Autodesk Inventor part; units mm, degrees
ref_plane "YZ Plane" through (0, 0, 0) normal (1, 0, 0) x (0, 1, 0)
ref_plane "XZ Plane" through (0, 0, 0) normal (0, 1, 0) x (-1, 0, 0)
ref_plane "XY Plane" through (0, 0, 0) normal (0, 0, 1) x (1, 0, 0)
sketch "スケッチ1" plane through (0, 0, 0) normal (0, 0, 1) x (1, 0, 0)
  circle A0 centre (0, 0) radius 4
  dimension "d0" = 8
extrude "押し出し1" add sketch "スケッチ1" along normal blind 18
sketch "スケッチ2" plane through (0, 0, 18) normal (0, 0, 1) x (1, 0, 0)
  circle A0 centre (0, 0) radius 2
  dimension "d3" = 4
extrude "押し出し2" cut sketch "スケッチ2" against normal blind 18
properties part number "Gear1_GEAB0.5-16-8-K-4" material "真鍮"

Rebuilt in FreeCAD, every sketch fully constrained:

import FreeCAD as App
import Part
import Sketcher

V = App.Vector

doc = App.newDocument("Part")
body = doc.addObject("PartDesign::Body", "Body")

sketch1 = doc.addObject("Sketcher::SketchObject", "Sketch")
body.addObject(sketch1)
sketch1.AttachmentSupport = (doc.XY_Plane, [""])
sketch1.MapMode = "FlatFace"
sketch1.addGeometry(Part.Circle(V(0, 0, 0), V(0, 0, 1), 4), False)
sketch1.addConstraint(Sketcher.Constraint("Coincident", 0, 3, -1, 1))
sketch1.addConstraint(Sketcher.Constraint("Diameter", 0, 8.0))
pad1 = doc.addObject("PartDesign::Pad", "Pad")
body.addObject(pad1)
pad1.Profile = sketch1
pad1.Length = 18

sketch2 = doc.addObject("Sketcher::SketchObject", "Sketch001")
body.addObject(sketch2)
sketch2.AttachmentSupport = (doc.XY_Plane, [""])
sketch2.MapMode = "FlatFace"
sketch2.AttachmentOffset = App.Placement(V(0, 0, 18), App.Rotation())
sketch2.addGeometry(Part.Circle(V(0, 0, 0), V(0, 0, 1), 2), False)
sketch2.addConstraint(Sketcher.Constraint("Coincident", 0, 3, -1, 1))
sketch2.addConstraint(Sketcher.Constraint("Diameter", 0, 4.0))
pocket1 = doc.addObject("PartDesign::Pocket", "Pocket")
body.addObject(pocket1)
pocket1.Profile = sketch2
pocket1.Length = 18

doc.recompute()
